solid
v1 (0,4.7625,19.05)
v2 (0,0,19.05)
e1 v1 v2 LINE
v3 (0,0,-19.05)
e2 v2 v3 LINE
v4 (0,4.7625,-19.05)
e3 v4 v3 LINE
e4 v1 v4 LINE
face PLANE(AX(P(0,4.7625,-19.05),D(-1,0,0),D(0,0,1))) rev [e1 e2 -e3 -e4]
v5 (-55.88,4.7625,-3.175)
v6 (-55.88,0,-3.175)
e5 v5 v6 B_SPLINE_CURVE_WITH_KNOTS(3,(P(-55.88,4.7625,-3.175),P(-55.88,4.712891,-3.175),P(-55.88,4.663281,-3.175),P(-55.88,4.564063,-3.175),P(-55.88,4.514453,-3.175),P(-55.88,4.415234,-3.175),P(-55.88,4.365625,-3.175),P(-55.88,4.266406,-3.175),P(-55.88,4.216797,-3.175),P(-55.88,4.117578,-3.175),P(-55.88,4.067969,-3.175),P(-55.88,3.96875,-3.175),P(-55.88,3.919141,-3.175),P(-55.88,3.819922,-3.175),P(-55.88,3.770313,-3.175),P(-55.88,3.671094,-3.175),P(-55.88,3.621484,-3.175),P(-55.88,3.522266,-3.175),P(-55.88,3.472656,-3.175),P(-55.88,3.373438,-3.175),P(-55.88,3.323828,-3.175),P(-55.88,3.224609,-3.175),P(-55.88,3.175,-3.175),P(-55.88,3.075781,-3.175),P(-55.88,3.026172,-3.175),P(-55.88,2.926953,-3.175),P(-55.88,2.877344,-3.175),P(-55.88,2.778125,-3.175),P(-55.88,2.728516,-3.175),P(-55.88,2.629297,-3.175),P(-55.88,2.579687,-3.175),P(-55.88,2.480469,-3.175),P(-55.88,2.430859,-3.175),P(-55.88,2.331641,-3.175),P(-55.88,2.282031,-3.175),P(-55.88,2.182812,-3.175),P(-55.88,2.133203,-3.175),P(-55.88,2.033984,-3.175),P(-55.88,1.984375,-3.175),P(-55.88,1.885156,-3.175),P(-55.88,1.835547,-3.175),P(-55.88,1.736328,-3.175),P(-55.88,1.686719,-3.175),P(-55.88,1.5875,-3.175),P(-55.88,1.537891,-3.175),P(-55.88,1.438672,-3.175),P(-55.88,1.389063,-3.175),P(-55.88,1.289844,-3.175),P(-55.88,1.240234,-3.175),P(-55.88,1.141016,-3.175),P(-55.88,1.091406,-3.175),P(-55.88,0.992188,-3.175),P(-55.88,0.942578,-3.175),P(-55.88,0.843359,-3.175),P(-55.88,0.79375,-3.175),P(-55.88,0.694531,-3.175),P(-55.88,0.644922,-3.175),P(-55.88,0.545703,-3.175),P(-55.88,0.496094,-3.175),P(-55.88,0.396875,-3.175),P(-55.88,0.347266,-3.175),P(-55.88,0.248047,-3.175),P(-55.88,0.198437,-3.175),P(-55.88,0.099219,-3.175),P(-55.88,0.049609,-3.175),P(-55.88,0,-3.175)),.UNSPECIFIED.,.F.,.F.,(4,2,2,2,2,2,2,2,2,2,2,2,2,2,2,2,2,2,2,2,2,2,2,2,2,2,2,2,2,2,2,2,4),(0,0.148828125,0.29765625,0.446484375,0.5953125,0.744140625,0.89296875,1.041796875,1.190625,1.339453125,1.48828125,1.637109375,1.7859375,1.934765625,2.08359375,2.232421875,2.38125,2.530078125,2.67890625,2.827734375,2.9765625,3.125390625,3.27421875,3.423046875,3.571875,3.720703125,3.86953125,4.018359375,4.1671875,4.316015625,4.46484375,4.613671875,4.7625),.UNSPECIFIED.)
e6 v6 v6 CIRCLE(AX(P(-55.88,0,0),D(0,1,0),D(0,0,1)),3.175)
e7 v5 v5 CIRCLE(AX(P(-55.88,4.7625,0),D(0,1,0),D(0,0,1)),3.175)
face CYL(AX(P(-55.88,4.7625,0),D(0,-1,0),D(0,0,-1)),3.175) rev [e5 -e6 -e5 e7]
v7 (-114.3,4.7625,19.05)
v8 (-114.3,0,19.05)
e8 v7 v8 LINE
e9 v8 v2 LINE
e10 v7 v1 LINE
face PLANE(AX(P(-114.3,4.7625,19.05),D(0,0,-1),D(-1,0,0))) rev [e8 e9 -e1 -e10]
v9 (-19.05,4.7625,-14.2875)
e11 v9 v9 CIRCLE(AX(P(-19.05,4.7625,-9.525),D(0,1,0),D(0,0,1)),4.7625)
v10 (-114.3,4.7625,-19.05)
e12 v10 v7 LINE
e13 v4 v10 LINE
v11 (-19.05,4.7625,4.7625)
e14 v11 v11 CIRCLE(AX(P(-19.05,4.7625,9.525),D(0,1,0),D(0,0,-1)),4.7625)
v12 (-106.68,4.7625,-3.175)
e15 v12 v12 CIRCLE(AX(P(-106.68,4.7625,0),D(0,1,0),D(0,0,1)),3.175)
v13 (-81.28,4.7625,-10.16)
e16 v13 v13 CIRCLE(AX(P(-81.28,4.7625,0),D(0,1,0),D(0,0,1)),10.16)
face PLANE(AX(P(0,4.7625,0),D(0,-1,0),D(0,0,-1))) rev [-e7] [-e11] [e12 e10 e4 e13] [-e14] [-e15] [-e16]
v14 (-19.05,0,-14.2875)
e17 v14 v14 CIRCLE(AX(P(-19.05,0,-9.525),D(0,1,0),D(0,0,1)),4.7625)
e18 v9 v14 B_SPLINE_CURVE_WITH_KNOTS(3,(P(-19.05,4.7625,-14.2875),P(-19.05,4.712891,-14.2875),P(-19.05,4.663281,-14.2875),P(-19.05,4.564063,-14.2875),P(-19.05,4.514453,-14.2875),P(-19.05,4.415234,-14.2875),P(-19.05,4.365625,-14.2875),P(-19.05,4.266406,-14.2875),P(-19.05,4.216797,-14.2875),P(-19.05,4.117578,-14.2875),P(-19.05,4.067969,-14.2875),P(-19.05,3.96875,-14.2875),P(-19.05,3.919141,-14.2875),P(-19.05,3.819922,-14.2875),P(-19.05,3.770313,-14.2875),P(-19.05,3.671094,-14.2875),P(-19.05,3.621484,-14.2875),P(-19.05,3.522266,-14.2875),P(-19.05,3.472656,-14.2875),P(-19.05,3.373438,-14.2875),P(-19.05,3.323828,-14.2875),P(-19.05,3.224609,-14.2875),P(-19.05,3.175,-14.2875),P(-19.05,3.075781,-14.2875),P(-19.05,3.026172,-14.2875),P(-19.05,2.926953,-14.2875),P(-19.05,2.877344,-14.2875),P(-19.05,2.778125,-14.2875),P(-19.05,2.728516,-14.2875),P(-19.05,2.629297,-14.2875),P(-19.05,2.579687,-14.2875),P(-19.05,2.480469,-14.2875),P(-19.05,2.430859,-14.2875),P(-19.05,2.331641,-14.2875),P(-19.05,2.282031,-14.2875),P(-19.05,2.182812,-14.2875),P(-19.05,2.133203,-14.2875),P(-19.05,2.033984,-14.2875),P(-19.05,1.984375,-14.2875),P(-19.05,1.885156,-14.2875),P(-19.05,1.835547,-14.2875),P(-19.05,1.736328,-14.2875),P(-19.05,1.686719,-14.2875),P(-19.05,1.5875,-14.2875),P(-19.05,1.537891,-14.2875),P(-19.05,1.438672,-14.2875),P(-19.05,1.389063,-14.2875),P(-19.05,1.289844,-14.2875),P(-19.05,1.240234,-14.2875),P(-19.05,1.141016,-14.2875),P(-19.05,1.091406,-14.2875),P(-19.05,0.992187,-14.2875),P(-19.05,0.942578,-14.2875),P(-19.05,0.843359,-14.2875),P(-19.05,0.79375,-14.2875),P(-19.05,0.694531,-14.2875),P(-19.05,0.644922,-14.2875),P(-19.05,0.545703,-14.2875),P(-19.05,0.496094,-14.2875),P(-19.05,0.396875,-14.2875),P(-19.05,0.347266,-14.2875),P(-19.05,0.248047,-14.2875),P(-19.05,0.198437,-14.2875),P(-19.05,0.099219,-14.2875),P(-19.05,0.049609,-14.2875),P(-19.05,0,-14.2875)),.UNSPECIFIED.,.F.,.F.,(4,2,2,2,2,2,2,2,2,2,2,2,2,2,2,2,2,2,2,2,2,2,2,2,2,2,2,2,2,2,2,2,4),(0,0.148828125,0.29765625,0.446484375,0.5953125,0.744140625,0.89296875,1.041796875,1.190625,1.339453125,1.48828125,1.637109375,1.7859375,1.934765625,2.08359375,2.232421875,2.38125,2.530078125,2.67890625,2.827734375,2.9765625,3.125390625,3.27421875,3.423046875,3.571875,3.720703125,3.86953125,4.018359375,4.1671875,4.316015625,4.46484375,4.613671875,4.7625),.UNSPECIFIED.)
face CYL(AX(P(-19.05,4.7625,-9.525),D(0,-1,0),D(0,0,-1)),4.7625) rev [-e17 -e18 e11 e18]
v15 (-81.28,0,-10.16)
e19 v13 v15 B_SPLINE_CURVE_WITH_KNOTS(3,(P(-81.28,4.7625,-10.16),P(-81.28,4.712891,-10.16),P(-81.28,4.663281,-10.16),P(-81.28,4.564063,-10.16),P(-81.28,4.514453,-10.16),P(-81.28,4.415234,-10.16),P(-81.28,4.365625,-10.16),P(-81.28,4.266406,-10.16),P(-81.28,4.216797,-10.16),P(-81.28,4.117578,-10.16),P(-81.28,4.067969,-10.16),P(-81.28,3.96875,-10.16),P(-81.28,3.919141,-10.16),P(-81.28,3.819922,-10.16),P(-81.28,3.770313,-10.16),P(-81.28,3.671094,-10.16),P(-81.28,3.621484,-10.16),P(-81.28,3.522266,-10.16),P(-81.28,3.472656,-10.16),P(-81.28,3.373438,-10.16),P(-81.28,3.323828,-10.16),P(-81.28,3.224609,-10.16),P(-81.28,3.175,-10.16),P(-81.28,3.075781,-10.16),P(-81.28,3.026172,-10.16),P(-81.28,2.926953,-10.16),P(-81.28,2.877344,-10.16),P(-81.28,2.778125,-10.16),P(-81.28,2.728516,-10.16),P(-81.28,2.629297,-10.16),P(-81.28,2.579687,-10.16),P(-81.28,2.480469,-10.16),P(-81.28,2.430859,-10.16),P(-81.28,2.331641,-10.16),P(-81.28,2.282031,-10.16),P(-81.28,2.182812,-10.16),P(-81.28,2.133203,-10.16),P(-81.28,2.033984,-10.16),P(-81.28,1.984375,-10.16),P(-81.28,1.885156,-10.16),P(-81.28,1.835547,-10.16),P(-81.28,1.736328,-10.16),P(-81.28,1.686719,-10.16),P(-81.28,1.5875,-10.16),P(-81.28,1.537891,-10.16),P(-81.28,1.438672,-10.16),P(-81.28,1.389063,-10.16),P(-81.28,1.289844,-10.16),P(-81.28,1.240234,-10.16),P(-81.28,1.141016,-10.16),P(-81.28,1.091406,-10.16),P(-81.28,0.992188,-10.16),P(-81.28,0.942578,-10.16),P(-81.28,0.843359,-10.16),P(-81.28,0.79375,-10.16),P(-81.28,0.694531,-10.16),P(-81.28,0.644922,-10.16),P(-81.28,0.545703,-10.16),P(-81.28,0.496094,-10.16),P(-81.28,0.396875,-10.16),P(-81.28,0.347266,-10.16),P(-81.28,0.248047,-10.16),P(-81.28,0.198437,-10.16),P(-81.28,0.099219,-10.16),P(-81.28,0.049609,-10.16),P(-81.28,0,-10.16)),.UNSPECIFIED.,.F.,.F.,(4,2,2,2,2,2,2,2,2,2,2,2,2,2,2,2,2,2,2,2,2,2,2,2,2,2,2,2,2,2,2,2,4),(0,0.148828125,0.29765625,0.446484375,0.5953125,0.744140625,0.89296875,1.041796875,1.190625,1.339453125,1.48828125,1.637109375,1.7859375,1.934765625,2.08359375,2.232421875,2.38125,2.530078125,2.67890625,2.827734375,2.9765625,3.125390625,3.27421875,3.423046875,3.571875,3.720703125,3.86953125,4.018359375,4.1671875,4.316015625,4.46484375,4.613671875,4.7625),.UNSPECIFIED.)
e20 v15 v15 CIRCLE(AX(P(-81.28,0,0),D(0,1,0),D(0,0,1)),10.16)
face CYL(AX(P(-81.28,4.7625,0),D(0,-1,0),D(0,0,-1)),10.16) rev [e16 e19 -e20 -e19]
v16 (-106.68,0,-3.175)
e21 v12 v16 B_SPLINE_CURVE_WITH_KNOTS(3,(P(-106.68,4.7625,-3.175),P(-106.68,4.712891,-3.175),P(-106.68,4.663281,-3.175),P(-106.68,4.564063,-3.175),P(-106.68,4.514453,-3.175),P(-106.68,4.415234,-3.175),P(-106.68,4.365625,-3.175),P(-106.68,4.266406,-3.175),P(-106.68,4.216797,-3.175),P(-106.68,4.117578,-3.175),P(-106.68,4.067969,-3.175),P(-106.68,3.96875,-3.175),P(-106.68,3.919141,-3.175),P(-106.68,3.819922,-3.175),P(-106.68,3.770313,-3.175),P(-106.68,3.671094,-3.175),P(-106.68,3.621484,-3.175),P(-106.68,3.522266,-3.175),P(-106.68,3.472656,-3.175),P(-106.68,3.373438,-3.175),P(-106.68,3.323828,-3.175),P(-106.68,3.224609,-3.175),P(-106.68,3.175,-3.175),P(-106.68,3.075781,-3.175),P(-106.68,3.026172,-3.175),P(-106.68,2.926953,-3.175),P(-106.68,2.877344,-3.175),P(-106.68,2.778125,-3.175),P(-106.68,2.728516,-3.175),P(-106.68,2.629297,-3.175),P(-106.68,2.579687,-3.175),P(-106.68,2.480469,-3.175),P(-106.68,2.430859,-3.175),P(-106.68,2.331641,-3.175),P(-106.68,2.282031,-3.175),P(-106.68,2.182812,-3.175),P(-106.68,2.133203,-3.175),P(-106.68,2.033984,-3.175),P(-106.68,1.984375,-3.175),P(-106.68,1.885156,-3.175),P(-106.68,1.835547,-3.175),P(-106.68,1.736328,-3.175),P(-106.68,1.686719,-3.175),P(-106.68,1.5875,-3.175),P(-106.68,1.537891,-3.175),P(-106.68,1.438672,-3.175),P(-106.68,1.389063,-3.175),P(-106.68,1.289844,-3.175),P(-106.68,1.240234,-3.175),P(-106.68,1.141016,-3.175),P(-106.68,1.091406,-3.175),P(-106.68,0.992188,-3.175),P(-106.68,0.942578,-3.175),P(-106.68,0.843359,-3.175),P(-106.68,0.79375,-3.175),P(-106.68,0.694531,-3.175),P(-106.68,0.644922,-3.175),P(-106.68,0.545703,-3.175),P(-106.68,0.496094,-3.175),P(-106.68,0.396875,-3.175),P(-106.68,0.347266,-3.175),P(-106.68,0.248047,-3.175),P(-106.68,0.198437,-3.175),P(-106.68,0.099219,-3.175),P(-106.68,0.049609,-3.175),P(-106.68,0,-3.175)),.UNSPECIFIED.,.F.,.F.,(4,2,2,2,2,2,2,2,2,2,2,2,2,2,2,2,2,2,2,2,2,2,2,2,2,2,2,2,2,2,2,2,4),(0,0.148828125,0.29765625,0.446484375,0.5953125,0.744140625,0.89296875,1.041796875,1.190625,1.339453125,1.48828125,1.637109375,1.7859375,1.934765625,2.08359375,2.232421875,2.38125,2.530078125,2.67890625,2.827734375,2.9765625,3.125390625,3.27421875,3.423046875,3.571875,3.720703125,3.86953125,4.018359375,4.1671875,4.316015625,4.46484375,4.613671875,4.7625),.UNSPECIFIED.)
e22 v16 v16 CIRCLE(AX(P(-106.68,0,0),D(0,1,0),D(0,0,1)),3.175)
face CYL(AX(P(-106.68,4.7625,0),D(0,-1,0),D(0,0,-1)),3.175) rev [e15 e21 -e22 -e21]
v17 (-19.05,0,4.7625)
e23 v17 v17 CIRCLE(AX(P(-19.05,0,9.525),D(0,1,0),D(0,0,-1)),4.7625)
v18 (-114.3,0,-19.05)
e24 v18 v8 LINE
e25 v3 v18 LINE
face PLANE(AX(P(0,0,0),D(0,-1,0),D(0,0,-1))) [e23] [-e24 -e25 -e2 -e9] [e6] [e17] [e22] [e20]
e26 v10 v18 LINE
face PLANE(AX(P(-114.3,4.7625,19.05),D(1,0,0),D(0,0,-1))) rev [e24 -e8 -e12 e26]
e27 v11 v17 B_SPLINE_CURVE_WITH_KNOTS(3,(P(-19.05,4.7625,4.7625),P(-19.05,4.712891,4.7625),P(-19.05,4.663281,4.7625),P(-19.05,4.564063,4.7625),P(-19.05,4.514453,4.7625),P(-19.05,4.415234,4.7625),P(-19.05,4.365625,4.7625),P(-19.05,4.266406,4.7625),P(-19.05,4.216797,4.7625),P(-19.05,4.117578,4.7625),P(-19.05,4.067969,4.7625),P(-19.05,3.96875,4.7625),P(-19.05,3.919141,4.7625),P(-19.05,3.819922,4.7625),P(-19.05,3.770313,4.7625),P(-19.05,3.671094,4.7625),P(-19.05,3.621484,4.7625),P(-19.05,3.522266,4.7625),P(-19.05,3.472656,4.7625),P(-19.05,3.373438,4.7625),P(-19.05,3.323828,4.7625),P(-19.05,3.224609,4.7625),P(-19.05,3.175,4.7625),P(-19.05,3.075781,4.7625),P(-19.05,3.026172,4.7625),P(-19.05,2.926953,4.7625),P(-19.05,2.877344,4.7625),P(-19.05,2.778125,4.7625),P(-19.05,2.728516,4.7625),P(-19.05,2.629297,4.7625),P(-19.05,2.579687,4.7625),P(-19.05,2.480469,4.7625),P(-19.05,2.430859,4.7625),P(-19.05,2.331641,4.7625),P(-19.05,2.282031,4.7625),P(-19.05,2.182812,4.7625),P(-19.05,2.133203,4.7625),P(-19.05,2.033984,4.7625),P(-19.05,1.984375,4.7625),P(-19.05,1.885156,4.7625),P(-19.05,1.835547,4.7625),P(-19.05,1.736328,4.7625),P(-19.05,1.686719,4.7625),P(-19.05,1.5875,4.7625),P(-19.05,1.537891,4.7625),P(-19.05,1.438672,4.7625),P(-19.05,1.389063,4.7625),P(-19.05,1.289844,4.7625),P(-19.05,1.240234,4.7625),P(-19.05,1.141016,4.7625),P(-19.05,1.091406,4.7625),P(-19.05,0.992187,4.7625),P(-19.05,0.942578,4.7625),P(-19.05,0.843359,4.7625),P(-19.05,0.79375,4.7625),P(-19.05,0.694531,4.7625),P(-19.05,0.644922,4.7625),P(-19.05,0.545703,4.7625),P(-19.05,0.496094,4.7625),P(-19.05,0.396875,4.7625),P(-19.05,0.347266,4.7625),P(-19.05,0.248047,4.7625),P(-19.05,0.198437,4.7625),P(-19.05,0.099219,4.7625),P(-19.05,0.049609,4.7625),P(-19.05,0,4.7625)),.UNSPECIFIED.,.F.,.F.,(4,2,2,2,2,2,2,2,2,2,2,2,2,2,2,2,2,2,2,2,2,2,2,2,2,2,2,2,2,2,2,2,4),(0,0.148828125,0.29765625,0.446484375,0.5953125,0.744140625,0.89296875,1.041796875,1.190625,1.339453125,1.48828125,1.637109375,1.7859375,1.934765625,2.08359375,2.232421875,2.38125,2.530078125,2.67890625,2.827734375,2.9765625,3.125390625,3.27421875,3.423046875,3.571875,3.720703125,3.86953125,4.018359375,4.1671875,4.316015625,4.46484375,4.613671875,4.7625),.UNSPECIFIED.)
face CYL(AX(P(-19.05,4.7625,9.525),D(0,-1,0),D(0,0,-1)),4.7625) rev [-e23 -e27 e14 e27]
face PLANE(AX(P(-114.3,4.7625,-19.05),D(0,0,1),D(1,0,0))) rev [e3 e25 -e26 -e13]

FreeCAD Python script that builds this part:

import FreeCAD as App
import Part
import Sketcher
Q = App.Units.Quantity


def add_polygon(sketch, points):
    """Adds a closed chain of lines whose ends are joined by coincident constraints."""
    first, n = sketch.GeometryCount, len(points)
    for a, b in zip(points, points[1:] + points[:1]):
        sketch.addGeometry(Part.LineSegment(App.Vector(*a, 0), App.Vector(*b, 0)), False)
    for i in range(n):
        sketch.addConstraint(Sketcher.Constraint("Coincident", first + i, 2, first + (i + 1) % n, 1))

doc = App.newDocument("Part")
body = doc.addObject("PartDesign::Body", "Body")

sketch1 = doc.addObject("Sketcher::SketchObject", "Sketch")
body.addObject(sketch1)
sketch1.AttachmentSupport = (doc.XZ_Plane, [""])
sketch1.MapMode = "FlatFace"
add_polygon(sketch1, [(-114.3, -19.1), (-114.3, 19.1), (0, 19.1), (0, -19.1)])
sketch1.addGeometry(Part.Circle(App.Vector(-19.1, 9.5, 0), App.Vector(0, 0, 1), 4.8), False)
sketch1.addGeometry(Part.Circle(App.Vector(-106.7, 0, 0), App.Vector(0, 0, 1), 3.2), False)
sketch1.addGeometry(Part.Circle(App.Vector(-81.3, 0, 0), App.Vector(0, 0, 1), 10.2), False)
sketch1.addGeometry(Part.Circle(App.Vector(-55.9, 0, 0), App.Vector(0, 0, 1), 3.2), False)
sketch1.addGeometry(Part.Circle(App.Vector(-19.1, -9.5, 0), App.Vector(0, 0, 1), 4.8), False)
sketch1.addConstraint(Sketcher.Constraint("Vertical", 0))
sketch1.addConstraint(Sketcher.Constraint("Horizontal", 1))
sketch1.addConstraint(Sketcher.Constraint("Vertical", 2))
sketch1.addConstraint(Sketcher.Constraint("Horizontal", 3))
sketch1.addConstraint(Sketcher.Constraint("Equal", 5, 7))
sketch1.addConstraint(Sketcher.Constraint("Equal", 4, 8))
sketch1.addConstraint(Sketcher.Constraint("Symmetric", 1, 2, 2, 2, -1, 1))
sketch1.addConstraint(Sketcher.Constraint("Symmetric", 4, 3, 8, 3, -1))
sketch1.addConstraint(Sketcher.Constraint("PointOnObject", 5, 3, -1))
sketch1.addConstraint(Sketcher.Constraint("PointOnObject", 6, 3, -1))
sketch1.addConstraint(Sketcher.Constraint("PointOnObject", 7, 3, -1))
sketch1.addConstraint(Sketcher.Constraint("Diameter", 6, Q("0.8 in")))
sketch1.addConstraint(Sketcher.Constraint("Diameter", 5, Q("0.25 in")))
sketch1.addConstraint(Sketcher.Constraint("Diameter", 4, Q("0.375 in")))
sketch1.addConstraint(Sketcher.Constraint("DistanceX", 1, 1, 1, 2, Q("4.5 in")))
sketch1.addConstraint(Sketcher.Constraint("DistanceY", 0, 1, 0, 2, Q("1.5 in")))
sketch1.addConstraint(Sketcher.Constraint("DistanceX", 5, 3, 6, 3, Q("1 in")))
sketch1.addConstraint(Sketcher.Constraint("DistanceX", 6, 3, 7, 3, Q("1 in")))
sketch1.addConstraint(Sketcher.Constraint("DistanceX", 5, 3, -1, 1, Q("4.2 in")))
sketch1.addConstraint(Sketcher.Constraint("DistanceX", 4, 3, -1, 1, Q("0.75 in")))
sketch1.addConstraint(Sketcher.Constraint("DistanceY", 8, 3, 4, 3, Q("0.75 in")))
pad1 = doc.addObject("PartDesign::Pad", "Pad")
body.addObject(pad1)
pad1.Profile = sketch1
pad1.Length = Q("0.1875 in")
pad1.Reversed = True

doc.recompute()
